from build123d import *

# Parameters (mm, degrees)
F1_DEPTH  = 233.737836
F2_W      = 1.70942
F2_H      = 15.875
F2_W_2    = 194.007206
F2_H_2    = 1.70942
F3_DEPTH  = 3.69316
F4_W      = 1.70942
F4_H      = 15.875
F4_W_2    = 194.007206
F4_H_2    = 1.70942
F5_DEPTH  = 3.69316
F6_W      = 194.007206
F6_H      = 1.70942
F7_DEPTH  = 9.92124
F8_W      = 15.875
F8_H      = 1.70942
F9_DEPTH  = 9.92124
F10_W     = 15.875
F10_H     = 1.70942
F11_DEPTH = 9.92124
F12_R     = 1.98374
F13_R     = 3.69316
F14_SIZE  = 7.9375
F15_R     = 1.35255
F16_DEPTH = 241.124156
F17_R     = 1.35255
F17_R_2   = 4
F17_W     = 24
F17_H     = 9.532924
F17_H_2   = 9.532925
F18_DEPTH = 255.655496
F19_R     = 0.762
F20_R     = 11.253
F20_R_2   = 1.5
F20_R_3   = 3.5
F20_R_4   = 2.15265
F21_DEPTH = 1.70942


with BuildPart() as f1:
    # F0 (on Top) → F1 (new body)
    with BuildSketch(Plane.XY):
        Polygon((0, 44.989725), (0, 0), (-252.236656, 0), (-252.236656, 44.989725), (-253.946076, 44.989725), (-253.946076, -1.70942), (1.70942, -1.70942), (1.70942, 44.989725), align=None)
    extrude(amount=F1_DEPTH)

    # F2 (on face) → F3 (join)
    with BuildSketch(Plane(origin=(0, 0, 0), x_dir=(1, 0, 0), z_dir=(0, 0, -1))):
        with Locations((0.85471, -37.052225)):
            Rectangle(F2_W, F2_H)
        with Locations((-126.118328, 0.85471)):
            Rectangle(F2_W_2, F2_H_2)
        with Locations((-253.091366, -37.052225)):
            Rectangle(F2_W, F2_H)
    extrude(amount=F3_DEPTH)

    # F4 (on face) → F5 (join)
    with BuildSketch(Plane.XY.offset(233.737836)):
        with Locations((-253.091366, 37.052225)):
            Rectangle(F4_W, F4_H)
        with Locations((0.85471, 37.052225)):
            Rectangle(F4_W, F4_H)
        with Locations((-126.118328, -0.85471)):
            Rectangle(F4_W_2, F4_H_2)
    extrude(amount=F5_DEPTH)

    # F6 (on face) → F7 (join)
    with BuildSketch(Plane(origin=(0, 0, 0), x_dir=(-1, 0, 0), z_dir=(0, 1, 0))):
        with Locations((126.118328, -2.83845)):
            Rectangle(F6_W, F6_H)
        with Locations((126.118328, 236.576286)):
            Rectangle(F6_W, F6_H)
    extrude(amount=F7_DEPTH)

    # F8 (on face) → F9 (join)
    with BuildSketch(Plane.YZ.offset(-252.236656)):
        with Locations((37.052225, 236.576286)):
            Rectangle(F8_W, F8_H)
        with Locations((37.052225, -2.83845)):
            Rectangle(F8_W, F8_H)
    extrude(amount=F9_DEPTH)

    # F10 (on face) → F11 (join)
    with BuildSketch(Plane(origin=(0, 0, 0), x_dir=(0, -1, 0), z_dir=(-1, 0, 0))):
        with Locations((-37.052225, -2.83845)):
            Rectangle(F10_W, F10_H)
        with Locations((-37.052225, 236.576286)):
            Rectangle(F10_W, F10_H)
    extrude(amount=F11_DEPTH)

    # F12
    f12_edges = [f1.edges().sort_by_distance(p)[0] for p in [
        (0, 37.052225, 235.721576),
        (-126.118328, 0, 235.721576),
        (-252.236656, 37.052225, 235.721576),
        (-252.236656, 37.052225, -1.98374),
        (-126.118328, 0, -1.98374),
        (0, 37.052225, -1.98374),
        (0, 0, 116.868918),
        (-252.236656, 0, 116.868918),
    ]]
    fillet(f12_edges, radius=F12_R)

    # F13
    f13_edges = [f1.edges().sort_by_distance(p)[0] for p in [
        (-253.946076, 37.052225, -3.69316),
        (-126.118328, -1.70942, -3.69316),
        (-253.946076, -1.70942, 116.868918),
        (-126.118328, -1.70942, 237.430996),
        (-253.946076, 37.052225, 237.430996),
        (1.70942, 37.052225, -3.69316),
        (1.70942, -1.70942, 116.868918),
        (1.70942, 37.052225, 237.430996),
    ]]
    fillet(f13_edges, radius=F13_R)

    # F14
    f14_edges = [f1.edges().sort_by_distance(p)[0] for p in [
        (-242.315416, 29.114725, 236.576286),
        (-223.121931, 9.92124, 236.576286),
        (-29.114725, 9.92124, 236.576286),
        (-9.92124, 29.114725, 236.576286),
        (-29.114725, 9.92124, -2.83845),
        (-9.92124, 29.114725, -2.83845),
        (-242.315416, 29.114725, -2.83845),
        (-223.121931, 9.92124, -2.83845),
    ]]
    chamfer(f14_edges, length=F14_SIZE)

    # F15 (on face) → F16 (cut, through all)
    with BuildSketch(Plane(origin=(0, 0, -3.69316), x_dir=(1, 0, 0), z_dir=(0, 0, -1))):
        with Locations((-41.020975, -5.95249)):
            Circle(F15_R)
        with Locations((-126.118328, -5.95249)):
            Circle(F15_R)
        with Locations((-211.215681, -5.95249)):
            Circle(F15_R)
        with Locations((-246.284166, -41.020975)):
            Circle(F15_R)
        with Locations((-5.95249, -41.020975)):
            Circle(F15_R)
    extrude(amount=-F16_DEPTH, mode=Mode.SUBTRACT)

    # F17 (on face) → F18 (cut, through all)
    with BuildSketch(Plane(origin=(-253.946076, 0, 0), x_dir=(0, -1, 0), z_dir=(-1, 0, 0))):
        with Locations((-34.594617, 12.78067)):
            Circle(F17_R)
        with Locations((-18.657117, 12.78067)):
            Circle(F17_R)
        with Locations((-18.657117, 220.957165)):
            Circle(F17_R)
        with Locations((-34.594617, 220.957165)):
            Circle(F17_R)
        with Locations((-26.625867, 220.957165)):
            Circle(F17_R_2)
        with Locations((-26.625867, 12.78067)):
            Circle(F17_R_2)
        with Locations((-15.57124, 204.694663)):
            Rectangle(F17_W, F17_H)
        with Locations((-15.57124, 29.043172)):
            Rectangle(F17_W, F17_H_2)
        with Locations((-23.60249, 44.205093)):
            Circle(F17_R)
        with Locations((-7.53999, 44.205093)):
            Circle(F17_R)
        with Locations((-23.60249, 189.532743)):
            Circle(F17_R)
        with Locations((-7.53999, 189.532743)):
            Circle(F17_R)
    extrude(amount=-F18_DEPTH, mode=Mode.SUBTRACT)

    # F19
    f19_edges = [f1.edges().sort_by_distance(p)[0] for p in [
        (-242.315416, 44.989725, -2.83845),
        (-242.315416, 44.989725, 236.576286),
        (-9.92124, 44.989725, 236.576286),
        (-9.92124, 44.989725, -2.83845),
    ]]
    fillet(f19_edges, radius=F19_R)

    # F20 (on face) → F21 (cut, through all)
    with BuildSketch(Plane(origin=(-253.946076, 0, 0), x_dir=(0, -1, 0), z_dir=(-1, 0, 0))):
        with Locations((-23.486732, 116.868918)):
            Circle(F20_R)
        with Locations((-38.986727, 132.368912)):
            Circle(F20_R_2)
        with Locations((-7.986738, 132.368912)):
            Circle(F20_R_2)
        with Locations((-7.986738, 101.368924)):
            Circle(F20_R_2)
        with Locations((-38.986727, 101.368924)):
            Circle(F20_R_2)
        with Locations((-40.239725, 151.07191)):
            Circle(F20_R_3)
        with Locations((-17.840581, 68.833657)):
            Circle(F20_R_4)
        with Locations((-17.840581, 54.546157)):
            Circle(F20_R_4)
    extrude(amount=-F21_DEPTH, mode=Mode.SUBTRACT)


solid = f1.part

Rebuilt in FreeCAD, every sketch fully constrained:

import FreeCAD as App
import Part
import Sketcher

V = App.Vector
Q = App.Units.Quantity


def edges_at(feature, points):
    """Names of the edges that pass closest to the given points."""
    edges = feature.Shape.Edges
    near = lambda p: min(range(len(edges)), key=lambda i: edges[i].distToShape(Part.Vertex(*p))[0])
    return sorted({f"Edge{near(p) + 1}" for p in points})


def add_polygon(sketch, points):
    """Adds a closed chain of lines whose ends are joined by coincident constraints."""
    first, n = sketch.GeometryCount, len(points)
    for a, b in zip(points, points[1:] + points[:1]):
        sketch.addGeometry(Part.LineSegment(App.Vector(*a, 0), App.Vector(*b, 0)), False)
    for i in range(n):
        sketch.addConstraint(Sketcher.Constraint("Coincident", first + i, 2, first + (i + 1) % n, 1))

doc = App.newDocument("Part")
params = doc.addObject("Spreadsheet::Sheet", "Params")
for row, (alias, value) in enumerate([
    ("pad1_length", "233.737836 mm"),
    ("pad2_length", "3.69316 mm"),
    ("pad3_length", "3.69316 mm"),
    ("pad4_length", "9.92124 mm"),
    ("pad5_length", "9.92124 mm"),
    ("pad6_length", "9.92124 mm"),
    ("fillet_radius", "1.98374 mm"),
    ("fillet2_radius", "3.69316 mm"),
    ("chamfer_size", "7.9375 mm"),
    ("sketch8_diameter", "8 mm"),
    ("sketch8_width", "24 mm"),
    ("fillet3_radius", "0.762 mm"),
    ("sketch9_diameter", "3 mm"),
    ("sketch9_diameter2", "7 mm"),
    ("pocket3_length", "1.70942 mm"),
], start=1):
    params.set(f"A{row}", alias)
    params.set(f"B{row}", "=" + value)
    params.setAlias(f"B{row}", alias)

body = doc.addObject("PartDesign::Body", "Body")

# Sketch on XY plane
sketch1 = body.newObject("Sketcher::SketchObject", "Sketch")
sketch1.AttachmentSupport = (doc.getObject("XY_Plane"), [""])
sketch1.MapMode = "FlatFace"
add_polygon(sketch1, [(0, 45), (0, 0), (-252.2, 0), (-252.2, 45), (-253.9, 45), (-253.9, -1.7), (1.7, -1.7), (1.7, 45)])  # lines 0-7
sketch1.addConstraint([
    Sketcher.Constraint("Vertical", 0),
    Sketcher.Constraint("Horizontal", 1),
    Sketcher.Constraint("Vertical", 2),
    Sketcher.Constraint("Horizontal", 3),
    Sketcher.Constraint("Vertical", 4),
    Sketcher.Constraint("Horizontal", 5),
    Sketcher.Constraint("Vertical", 6),
    Sketcher.Constraint("Horizontal", 7),
    Sketcher.Constraint("Coincident", 0, 2, -1, 1),
    Sketcher.Constraint("Horizontal", 3, 2, 6, 2),
    Sketcher.Constraint("Equal", 3, 7),
    Sketcher.Constraint("DistanceX", 3, 2, 3, 1, Q("1.70942 mm")),
    Sketcher.Constraint("DistanceX", 1, 2, 1, 1, Q("252.236656 mm")),
    Sketcher.Constraint("DistanceY", 0, 2, 0, 1, Q("44.989725 mm")),
    Sketcher.Constraint("DistanceY", 4, 2, 4, 1, Q("46.699145 mm")),
])
pad1 = body.newObject("PartDesign::Pad", "Pad")
pad1.Profile = sketch1
pad1.setExpression("Length", "Params.pad1_length")

# Sketch on XY plane
sketch2 = body.newObject("Sketcher::SketchObject", "Sketch001")
sketch2.AttachmentSupport = (doc.getObject("XY_Plane"), [""])
sketch2.MapMode = "FlatFace"
add_polygon(sketch2, [(0, 29.1), (0, 45), (1.7, 45), (1.7, 29.1)])  # lines 0-3
add_polygon(sketch2, [(-223.1, -1.7), (-223.1, 0), (-29.1, 0), (-29.1, -1.7)])  # lines 4-7
add_polygon(sketch2, [(-253.9, 29.1), (-253.9, 45), (-252.2, 45), (-252.2, 29.1)])  # lines 8-11
sketch2.addConstraint([
    Sketcher.Constraint("Vertical", 0),
    Sketcher.Constraint("Horizontal", 1),
    Sketcher.Constraint("Vertical", 2),
    Sketcher.Constraint("Horizontal", 3),
    Sketcher.Constraint("Vertical", 4),
    Sketcher.Constraint("Horizontal", 5),
    Sketcher.Constraint("Vertical", 6),
    Sketcher.Constraint("Horizontal", 7),
    Sketcher.Constraint("Vertical", 8),
    Sketcher.Constraint("Horizontal", 9),
    Sketcher.Constraint("Vertical", 10),
    Sketcher.Constraint("Horizontal", 11),
    Sketcher.Constraint("PointOnObject", 0, 2, -2),
    Sketcher.Constraint("PointOnObject", 4, 2, -1),
    Sketcher.Constraint("Horizontal", 1, 2, 8, 2),
    Sketcher.Constraint("Horizontal", 3, 2, 10, 2),
    Sketcher.Constraint("Equal", 3, 9),
    Sketcher.Constraint("Equal", 11, 4),
    Sketcher.Constraint("DistanceY", 0, 1, 0, 2, Q("15.875 mm")),
    Sketcher.Constraint("DistanceX", 1, 1, 1, 2, Q("1.70942 mm")),
    Sketcher.Constraint("DistanceX", 5, 1, 5, 2, Q("194.007206 mm")),
    Sketcher.Constraint("DistanceX", 4, 2, -1, 1, Q("223.121931 mm")),
    Sketcher.Constraint("DistanceX", 8, 2, 5, 2, Q("224.831351 mm")),
    Sketcher.Constraint("DistanceY", -1, 1, 0, 2, Q("44.989725 mm")),
])
pad2 = body.newObject("PartDesign::Pad", "Pad001")
pad2.Profile = sketch2
pad2.setExpression("Length", "Params.pad2_length")
pad2.Reversed = True

# Sketch on XY plane
sketch3 = body.newObject("Sketcher::SketchObject", "Sketch002")
sketch3.AttachmentSupport = (doc.getObject("XY_Plane"), [""])
sketch3.MapMode = "FlatFace"
sketch3.AttachmentOffset = App.Placement(V(0, 0, 233.737836), App.Rotation())
add_polygon(sketch3, [(-253.9, 45), (-253.9, 29.1), (-252.2, 29.1), (-252.2, 45)])  # lines 0-3
add_polygon(sketch3, [(0, 45), (0, 29.1), (1.7, 29.1), (1.7, 45)])  # lines 4-7
add_polygon(sketch3, [(-223.1, 0), (-223.1, -1.7), (-29.1, -1.7), (-29.1, 0)])  # lines 8-11
sketch3.addConstraint([
    Sketcher.Constraint("Vertical", 0),
    Sketcher.Constraint("Horizontal", 1),
    Sketcher.Constraint("Vertical", 2),
    Sketcher.Constraint("Horizontal", 3),
    Sketcher.Constraint("Vertical", 4),
    Sketcher.Constraint("Horizontal", 5),
    Sketcher.Constraint("Vertical", 6),
    Sketcher.Constraint("Horizontal", 7),
    Sketcher.Constraint("Vertical", 8),
    Sketcher.Constraint("Horizontal", 9),
    Sketcher.Constraint("Vertical", 10),
    Sketcher.Constraint("Horizontal", 11),
    Sketcher.Constraint("PointOnObject", 4, 2, -2),
    Sketcher.Constraint("PointOnObject", 10, 2, -1),
    Sketcher.Constraint("Horizontal", 1, 2, 4, 2),
    Sketcher.Constraint("Horizontal", 3, 2, 6, 2),
    Sketcher.Constraint("Equal", 3, 5),
    Sketcher.Constraint("Equal", 7, 8),
    Sketcher.Constraint("DistanceY", 0, 2, 0, 1, Q("15.875 mm")),
    Sketcher.Constraint("DistanceX", 1, 1, 1, 2, Q("1.70942 mm")),
    Sketcher.Constraint("DistanceX", 9, 1, 9, 2, Q("194.007206 mm")),
    Sketcher.Constraint("DistanceX", 8, 2, -1, 1, Q("223.121931 mm")),
    Sketcher.Constraint("DistanceX", 0, 2, -1, 1, Q("253.946076 mm")),
    Sketcher.Constraint("DistanceY", -1, 1, 0, 2, Q("29.114725 mm")),
])
pad3 = body.newObject("PartDesign::Pad", "Pad002")
pad3.Profile = sketch3
pad3.setExpression("Length", "Params.pad3_length")

# Sketch on XZ plane
sketch4 = body.newObject("Sketcher::SketchObject", "Sketch003")
sketch4.AttachmentSupport = (doc.getObject("XZ_Plane"), [""])
sketch4.MapMode = "FlatFace"
add_polygon(sketch4, [(-29.1, -2), (-29.1, -3.7), (-223.1, -3.7), (-223.1, -2)])  # lines 0-3
add_polygon(sketch4, [(-29.1, 237.4), (-29.1, 235.7), (-223.1, 235.7), (-223.1, 237.4)])  # lines 4-7
sketch4.addConstraint([
    Sketcher.Constraint("Vertical", 0),
    Sketcher.Constraint("Horizontal", 1),
    Sketcher.Constraint("Vertical", 2),
    Sketcher.Constraint("Horizontal", 3),
    Sketcher.Constraint("Vertical", 4),
    Sketcher.Constraint("Horizontal", 5),
    Sketcher.Constraint("Vertical", 6),
    Sketcher.Constraint("Horizontal", 7),
    Sketcher.Constraint("Vertical", 3, 2, 4, 2),
    Sketcher.Constraint("Vertical", 2, 2, 5, 2),
    Sketcher.Constraint("Equal", 2, 4),
    Sketcher.Constraint("DistanceY", 0, 2, 0, 1, Q("1.70942 mm")),
    Sketcher.Constraint("DistanceX", 1, 2, 1, 1, Q("194.007206 mm")),
    Sketcher.Constraint("DistanceY", 0, 2, -1, 1, Q("3.69316 mm")),
    Sketcher.Constraint("DistanceX", 1, 2, -1, 1, Q("223.121931 mm")),
    Sketcher.Constraint("DistanceY", -1, 1, 4, 2, Q("235.721576 mm")),
])
pad4 = body.newObject("PartDesign::Pad", "Pad003")
pad4.Profile = sketch4
pad4.setExpression("Length", "Params.pad4_length")
pad4.Reversed = True

# Sketch on YZ plane
sketch5 = body.newObject("Sketcher::SketchObject", "Sketch004")
sketch5.AttachmentSupport = (doc.getObject("YZ_Plane"), [""])
sketch5.MapMode = "FlatFace"
sketch5.AttachmentOffset = App.Placement(V(0, 0, -252.236656), App.Rotation())
add_polygon(sketch5, [(29.1, 237.4), (29.1, 235.7), (45, 235.7), (45, 237.4)])  # lines 0-3
add_polygon(sketch5, [(29.1, -2), (29.1, -3.7), (45, -3.7), (45, -2)])  # lines 4-7
sketch5.addConstraint([
    Sketcher.Constraint("Vertical", 0),
    Sketcher.Constraint("Horizontal", 1),
    Sketcher.Constraint("Vertical", 2),
    Sketcher.Constraint("Horizontal", 3),
    Sketcher.Constraint("Vertical", 4),
    Sketcher.Constraint("Horizontal", 5),
    Sketcher.Constraint("Vertical", 6),
    Sketcher.Constraint("Horizontal", 7),
    Sketcher.Constraint("Vertical", 3, 2, 4, 2),
    Sketcher.Constraint("Vertical", 2, 2, 5, 2),
    Sketcher.Constraint("Equal", 2, 4),
    Sketcher.Constraint("DistanceX", 1, 1, 1, 2, Q("15.875 mm")),
    Sketcher.Constraint("DistanceY", 0, 2, 0, 1, Q("1.70942 mm")),
    Sketcher.Constraint("DistanceY", 4, 2, -1, 1, Q("3.69316 mm")),
    Sketcher.Constraint("DistanceX", -1, 1, 0, 2, Q("29.114725 mm")),
    Sketcher.Constraint("DistanceY", -1, 1, 0, 2, Q("235.721576 mm")),
])
pad5 = body.newObject("PartDesign::Pad", "Pad004")
pad5.Profile = sketch5
pad5.setExpression("Length", "Params.pad5_length")

# Sketch on YZ plane
sketch6 = body.newObject("Sketcher::SketchObject", "Sketch005")
sketch6.AttachmentSupport = (doc.getObject("YZ_Plane"), [""])
sketch6.MapMode = "FlatFace"
add_polygon(sketch6, [(45, -2), (45, -3.7), (29.1, -3.7), (29.1, -2)])  # lines 0-3
add_polygon(sketch6, [(45, 237.4), (45, 235.7), (29.1, 235.7), (29.1, 237.4)])  # lines 4-7
sketch6.addConstraint([
    Sketcher.Constraint("Vertical", 0),
    Sketcher.Constraint("Horizontal", 1),
    Sketcher.Constraint("Vertical", 2),
    Sketcher.Constraint("Horizontal", 3),
    Sketcher.Constraint("Vertical", 4),
    Sketcher.Constraint("Horizontal", 5),
    Sketcher.Constraint("Vertical", 6),
    Sketcher.Constraint("Horizontal", 7),
    Sketcher.Constraint("Vertical", 3, 2, 4, 2),
    Sketcher.Constraint("Vertical", 2, 2, 5, 2),
    Sketcher.Constraint("Equal", 2, 4),
    Sketcher.Constraint("DistanceX", 1, 2, 1, 1, Q("15.875 mm")),
    Sketcher.Constraint("DistanceY", 0, 2, 0, 1, Q("1.70942 mm")),
    Sketcher.Constraint("DistanceY", 0, 2, -1, 1, Q("3.69316 mm")),
    Sketcher.Constraint("DistanceX", -1, 1, 0, 2, Q("44.989725 mm")),
    Sketcher.Constraint("DistanceY", -1, 1, 4, 2, Q("235.721576 mm")),
])
pad6 = body.newObject("PartDesign::Pad", "Pad005")
pad6.Profile = sketch6
pad6.setExpression("Length", "Params.pad6_length")
pad6.Reversed = True
doc.recompute()

fillet = body.newObject("PartDesign::Fillet", "Fillet")
fillet.Base = (pad6, edges_at(pad6, [
    (0, 37.052, 235.722),
    (-126.118, 0, 235.722),
    (-252.237, 37.052, 235.722),
    (-252.237, 37.052, -1.984),
    (-126.118, 0, -1.984),
    (0, 37.052, -1.984),
    (0, 0, 116.869),
    (-252.237, 0, 116.869),
]))
fillet.setExpression("Radius", "Params.fillet_radius")
doc.recompute()

fillet2 = body.newObject("PartDesign::Fillet", "Fillet001")
fillet2.Base = (fillet, edges_at(fillet, [
    (-253.946, 37.052, -3.693),
    (-126.118, -1.709, -3.693),
    (-253.946, -1.709, 116.869),
    (-126.118, -1.709, 237.431),
    (-253.946, 37.052, 237.431),
    (1.709, 37.052, -3.693),
    (1.709, -1.709, 116.869),
    (1.709, 37.052, 237.431),
]))
fillet2.setExpression("Radius", "Params.fillet2_radius")
doc.recompute()

chamfer = body.newObject("PartDesign::Chamfer", "Chamfer")
chamfer.Base = (fillet2, edges_at(fillet2, [
    (-242.315, 29.115, 236.576),
    (-223.122, 9.921, 236.576),
    (-29.115, 9.921, 236.576),
    (-9.921, 29.115, 236.576),
    (-29.115, 9.921, -2.838),
    (-9.921, 29.115, -2.838),
    (-242.315, 29.115, -2.838),
    (-223.122, 9.921, -2.838),
]))
chamfer.setExpression("Size", "Params.chamfer_size")

# Sketch on XY plane
sketch7 = body.newObject("Sketcher::SketchObject", "Sketch006")
sketch7.AttachmentSupport = (doc.getObject("XY_Plane"), [""])
sketch7.MapMode = "FlatFace"
sketch7.AttachmentOffset = App.Placement(V(0, 0, -3.69316), App.Rotation())
sketch7.addGeometry([
    Part.Circle(V(-41, 6, 0), V(0, 0, 1), 1.4),  # 0
    Part.Circle(V(-126.1, 6, 0), V(0, 0, 1), 1.4),  # 1
    Part.Circle(V(-211.2, 6, 0), V(0, 0, 1), 1.4),  # 2
    Part.Circle(V(-246.3, 41, 0), V(0, 0, 1), 1.4),  # 3
    Part.Circle(V(-6, 41, 0), V(0, 0, 1), 1.4),  # 4
], False)
sketch7.addConstraint([
    Sketcher.Constraint("Equal", 0, 1),
    Sketcher.Constraint("Equal", 1, 2),
    Sketcher.Constraint("Equal", 2, 3),
    Sketcher.Constraint("Equal", 3, 4),
    Sketcher.Constraint("Horizontal", 0, 3, 1, 3),
    Sketcher.Constraint("Horizontal", 1, 3, 2, 3),
    Sketcher.Constraint("Horizontal", 3, 3, 4, 3),
    Sketcher.Constraint("Diameter", 0, Q("2.7051 mm")),
    Sketcher.Constraint("DistanceY", -1, 1, 0, 3, Q("5.95249 mm")),
    Sketcher.Constraint("DistanceX", 1, 3, -1, 1, Q("126.118328 mm")),
    Sketcher.Constraint("DistanceX", 2, 3, -1, 1, Q("211.215681 mm")),
    Sketcher.Constraint("DistanceX", 4, 3, -1, 1, Q("5.95249 mm")),
    Sketcher.Constraint("DistanceX", 3, 3, 0, 3, Q("205.263191 mm")),
    Sketcher.Constraint("DistanceX", 0, 3, -1, 1, Q("41.020975 mm")),
    Sketcher.Constraint("DistanceY", -1, 1, 3, 3, Q("41.020975 mm")),
])
pocket1 = body.newObject("PartDesign::Pocket", "Pocket")
pocket1.Profile = sketch7
pocket1.Type = "ThroughAll"
pocket1.Reversed = True

# Sketch on YZ plane
sketch8 = body.newObject("Sketcher::SketchObject", "Sketch007")
sketch8.AttachmentSupport = (doc.getObject("YZ_Plane"), [""])
sketch8.MapMode = "FlatFace"
sketch8.AttachmentOffset = App.Placement(V(0, 0, -253.946076), App.Rotation())
sketch8.addGeometry(Part.Circle(V(34.6, 12.8, 0), V(0, 0, 1), 1.4), False)  # 0
sketch8.addGeometry(Part.Circle(V(18.7, 12.8, 0), V(0, 0, 1), 1.4), False)  # 1
sketch8.addGeometry(Part.Circle(V(18.7, 221, 0), V(0, 0, 1), 1.4), False)  # 2
sketch8.addGeometry(Part.Circle(V(34.6, 221, 0), V(0, 0, 1), 1.4), False)  # 3
sketch8.addGeometry(Part.Circle(V(26.6, 221, 0), V(0, 0, 1), 4), False)  # 4
sketch8.addGeometry(Part.Circle(V(26.6, 12.8, 0), V(0, 0, 1), 4), False)  # 5
add_polygon(sketch8, [(27.6, 209.5), (27.6, 199.9), (3.6, 199.9), (3.6, 209.5)])  # lines 6-9
add_polygon(sketch8, [(27.6, 33.8), (27.6, 24.3), (3.6, 24.3), (3.6, 33.8)])  # lines 10-13
sketch8.addGeometry(Part.Circle(V(23.6, 44.2, 0), V(0, 0, 1), 1.4), False)  # 14
sketch8.addGeometry(Part.Circle(V(7.5, 44.2, 0), V(0, 0, 1), 1.4), False)  # 15
sketch8.addGeometry(Part.Circle(V(23.6, 189.5, 0), V(0, 0, 1), 1.4), False)  # 16
sketch8.addGeometry(Part.Circle(V(7.5, 189.5, 0), V(0, 0, 1), 1.4), False)  # 17
sketch8.addConstraint([
    Sketcher.Constraint("Vertical", 6),
    Sketcher.Constraint("Horizontal", 7),
    Sketcher.Constraint("Vertical", 8),
    Sketcher.Constraint("Horizontal", 9),
    Sketcher.Constraint("Vertical", 10),
    Sketcher.Constraint("Horizontal", 11),
    Sketcher.Constraint("Vertical", 12),
    Sketcher.Constraint("Horizontal", 13),
    Sketcher.Constraint("Equal", 0, 1),
    Sketcher.Constraint("Equal", 1, 2),
    Sketcher.Constraint("Equal", 2, 3),
    Sketcher.Constraint("Equal", 4, 5),
    Sketcher.Constraint("Equal", 3, 14),
    Sketcher.Constraint("Equal", 14, 15),
    Sketcher.Constraint("Equal", 15, 16),
    Sketcher.Constraint("Equal", 16, 17),
    Sketcher.Constraint("Horizontal", 0, 3, 1, 3),
    Sketcher.Constraint("Horizontal", 2, 3, 3, 3),
    Sketcher.Constraint("Horizontal", 3, 3, 4, 3),
    Sketcher.Constraint("Horizontal", 1, 3, 5, 3),
    Sketcher.Constraint("Horizontal", 14, 3, 15, 3),
    Sketcher.Constraint("Horizontal", 16, 3, 17, 3),
    Sketcher.Constraint("Vertical", 1, 3, 2, 3),
    Sketcher.Constraint("Vertical", 0, 3, 3, 3),
    Sketcher.Constraint("Vertical", 4, 3, 5, 3),
    Sketcher.Constraint("Vertical", 14, 3, 16, 3),
    Sketcher.Constraint("Vertical", 15, 3, 17, 3),
    Sketcher.Constraint("Vertical", 9, 2, 10, 2),
    Sketcher.Constraint("Vertical", 8, 2, 11, 2),
    Sketcher.Constraint("Equal", 8, 10),
    Sketcher.Constraint("Diameter", 4, Q("8 mm")),
    Sketcher.Constraint("DistanceX", 7, 2, 7, 1, Q("24 mm")),
    Sketcher.Constraint("Diameter", 0, Q("2.7051 mm")),
    Sketcher.Constraint("DistanceY", -1, 1, 6, 2, Q("199.928201 mm")),
    Sketcher.Constraint("DistanceX", 1, 3, 0, 3, Q("15.9375 mm")),
    Sketcher.Constraint("DistanceX", 15, 3, 14, 3, Q("16.0625 mm")),
    Sketcher.Constraint("DistanceY", 6, 2, 6, 1, Q("9.532924 mm")),
    Sketcher.Constraint("DistanceY", -1, 1, 0, 3, Q("12.78067 mm")),
    Sketcher.Constraint("DistanceX", -1, 1, 14, 3, Q("23.60249 mm")),
    Sketcher.Constraint("DistanceX", -1, 1, 6, 2, Q("27.57124 mm")),
    Sketcher.Constraint("DistanceY", -1, 1, 10, 2, Q("24.276709 mm")),
    Sketcher.Constraint("DistanceX", 2, 3, 4, 3, Q("7.96875 mm")),
    Sketcher.Constraint("DistanceY", 14, 3, 4, 3, Q("176.752072 mm")),
    Sketcher.Constraint("DistanceY", 16, 3, 4, 3, Q("31.424422 mm")),
    Sketcher.Constraint("DistanceY", 8, 2, 2, 3, Q("11.49604 mm")),
    Sketcher.Constraint("DistanceX", -1, 1, 0, 3, Q("34.594617 mm")),
])
sketch8.setExpression("Constraints[38]", "Params.sketch8_diameter")
sketch8.setExpression("Constraints[39]", "Params.sketch8_width")
pocket2 = body.newObject("PartDesign::Pocket", "Pocket001")
pocket2.Profile = sketch8
pocket2.Type = "ThroughAll"
pocket2.Reversed = True
doc.recompute()

fillet3 = body.newObject("PartDesign::Fillet", "Fillet002")
fillet3.Base = (pocket2, edges_at(pocket2, [
    (-242.315, 44.99, -2.838),
    (-242.315, 44.99, 236.576),
    (-9.921, 44.99, 236.576),
    (-9.921, 44.99, -2.838),
]))
fillet3.setExpression("Radius", "Params.fillet3_radius")

# Sketch on YZ plane
sketch9 = body.newObject("Sketcher::SketchObject", "Sketch008")
sketch9.AttachmentSupport = (doc.getObject("YZ_Plane"), [""])
sketch9.MapMode = "FlatFace"
sketch9.AttachmentOffset = App.Placement(V(0, 0, -253.946076), App.Rotation())
sketch9.addGeometry([
    Part.Circle(V(23.5, 116.9, 0), V(0, 0, 1), 11.3),  # 0
    Part.Circle(V(39, 132.4, 0), V(0, 0, 1), 1.5),  # 1
    Part.Circle(V(8, 132.4, 0), V(0, 0, 1), 1.5),  # 2
    Part.Circle(V(8, 101.4, 0), V(0, 0, 1), 1.5),  # 3
    Part.Circle(V(39, 101.4, 0), V(0, 0, 1), 1.5),  # 4
    Part.Circle(V(40.2, 151.1, 0), V(0, 0, 1), 3.5),  # 5
    Part.Circle(V(17.8, 68.8, 0), V(0, 0, 1), 2.2),  # 6
    Part.Circle(V(17.8, 54.5, 0), V(0, 0, 1), 2.2),  # 7
], False)
sketch9.addConstraint([
    Sketcher.Constraint("Equal", 1, 2),
    Sketcher.Constraint("Equal", 2, 3),
    Sketcher.Constraint("Equal", 3, 4),
    Sketcher.Constraint("Equal", 6, 7),
    Sketcher.Constraint("Horizontal", 1, 3, 2, 3),
    Sketcher.Constraint("Horizontal", 3, 3, 4, 3),
    Sketcher.Constraint("Vertical", 2, 3, 3, 3),
    Sketcher.Constraint("Vertical", 1, 3, 4, 3),
    Sketcher.Constraint("Vertical", 6, 3, 7, 3),
    Sketcher.Constraint("Diameter", 1, Q("3 mm")),
    Sketcher.Constraint("Diameter", 5, Q("7 mm")),
    Sketcher.Constraint("Diameter", 0, Q("22.506 mm")),
    Sketcher.Constraint("Diameter", 6, Q("4.3053 mm")),
    Sketcher.Constraint("DistanceY", 1, 3, 5, 3, Q("18.702998 mm")),
    Sketcher.Constraint("DistanceY", 7, 3, 6, 3, Q("14.2875 mm")),
    Sketcher.Constraint("DistanceX", -1, 1, 0, 3, Q("23.486732 mm")),
    Sketcher.Constraint("DistanceY", -1, 1, 1, 3, Q("132.368912 mm")),
    Sketcher.Constraint("DistanceX", -1, 1, 6, 3, Q("17.840581 mm")),
    Sketcher.Constraint("DistanceX", 2, 3, 1, 3, Q("30.999989 mm")),
    Sketcher.Constraint("DistanceY", 6, 3, 0, 3, Q("48.035261 mm")),
    Sketcher.Constraint("DistanceY", -1, 1, 0, 3, Q("116.868918 mm")),
    Sketcher.Constraint("DistanceX", -1, 1, 1, 3, Q("38.986727 mm")),
    Sketcher.Constraint("DistanceY", -1, 1, 3, 3, Q("101.368924 mm")),
    Sketcher.Constraint("DistanceX", -1, 1, 5, 3, Q("40.239725 mm")),
])
sketch9.setExpression("Constraints[9]", "Params.sketch9_diameter")
sketch9.setExpression("Constraints[10]", "Params.sketch9_diameter2")
pocket3 = body.newObject("PartDesign::Pocket", "Pocket002")
pocket3.Profile = sketch9
pocket3.setExpression("Length", "Params.pocket3_length")
pocket3.Reversed = True

doc.recompute()
